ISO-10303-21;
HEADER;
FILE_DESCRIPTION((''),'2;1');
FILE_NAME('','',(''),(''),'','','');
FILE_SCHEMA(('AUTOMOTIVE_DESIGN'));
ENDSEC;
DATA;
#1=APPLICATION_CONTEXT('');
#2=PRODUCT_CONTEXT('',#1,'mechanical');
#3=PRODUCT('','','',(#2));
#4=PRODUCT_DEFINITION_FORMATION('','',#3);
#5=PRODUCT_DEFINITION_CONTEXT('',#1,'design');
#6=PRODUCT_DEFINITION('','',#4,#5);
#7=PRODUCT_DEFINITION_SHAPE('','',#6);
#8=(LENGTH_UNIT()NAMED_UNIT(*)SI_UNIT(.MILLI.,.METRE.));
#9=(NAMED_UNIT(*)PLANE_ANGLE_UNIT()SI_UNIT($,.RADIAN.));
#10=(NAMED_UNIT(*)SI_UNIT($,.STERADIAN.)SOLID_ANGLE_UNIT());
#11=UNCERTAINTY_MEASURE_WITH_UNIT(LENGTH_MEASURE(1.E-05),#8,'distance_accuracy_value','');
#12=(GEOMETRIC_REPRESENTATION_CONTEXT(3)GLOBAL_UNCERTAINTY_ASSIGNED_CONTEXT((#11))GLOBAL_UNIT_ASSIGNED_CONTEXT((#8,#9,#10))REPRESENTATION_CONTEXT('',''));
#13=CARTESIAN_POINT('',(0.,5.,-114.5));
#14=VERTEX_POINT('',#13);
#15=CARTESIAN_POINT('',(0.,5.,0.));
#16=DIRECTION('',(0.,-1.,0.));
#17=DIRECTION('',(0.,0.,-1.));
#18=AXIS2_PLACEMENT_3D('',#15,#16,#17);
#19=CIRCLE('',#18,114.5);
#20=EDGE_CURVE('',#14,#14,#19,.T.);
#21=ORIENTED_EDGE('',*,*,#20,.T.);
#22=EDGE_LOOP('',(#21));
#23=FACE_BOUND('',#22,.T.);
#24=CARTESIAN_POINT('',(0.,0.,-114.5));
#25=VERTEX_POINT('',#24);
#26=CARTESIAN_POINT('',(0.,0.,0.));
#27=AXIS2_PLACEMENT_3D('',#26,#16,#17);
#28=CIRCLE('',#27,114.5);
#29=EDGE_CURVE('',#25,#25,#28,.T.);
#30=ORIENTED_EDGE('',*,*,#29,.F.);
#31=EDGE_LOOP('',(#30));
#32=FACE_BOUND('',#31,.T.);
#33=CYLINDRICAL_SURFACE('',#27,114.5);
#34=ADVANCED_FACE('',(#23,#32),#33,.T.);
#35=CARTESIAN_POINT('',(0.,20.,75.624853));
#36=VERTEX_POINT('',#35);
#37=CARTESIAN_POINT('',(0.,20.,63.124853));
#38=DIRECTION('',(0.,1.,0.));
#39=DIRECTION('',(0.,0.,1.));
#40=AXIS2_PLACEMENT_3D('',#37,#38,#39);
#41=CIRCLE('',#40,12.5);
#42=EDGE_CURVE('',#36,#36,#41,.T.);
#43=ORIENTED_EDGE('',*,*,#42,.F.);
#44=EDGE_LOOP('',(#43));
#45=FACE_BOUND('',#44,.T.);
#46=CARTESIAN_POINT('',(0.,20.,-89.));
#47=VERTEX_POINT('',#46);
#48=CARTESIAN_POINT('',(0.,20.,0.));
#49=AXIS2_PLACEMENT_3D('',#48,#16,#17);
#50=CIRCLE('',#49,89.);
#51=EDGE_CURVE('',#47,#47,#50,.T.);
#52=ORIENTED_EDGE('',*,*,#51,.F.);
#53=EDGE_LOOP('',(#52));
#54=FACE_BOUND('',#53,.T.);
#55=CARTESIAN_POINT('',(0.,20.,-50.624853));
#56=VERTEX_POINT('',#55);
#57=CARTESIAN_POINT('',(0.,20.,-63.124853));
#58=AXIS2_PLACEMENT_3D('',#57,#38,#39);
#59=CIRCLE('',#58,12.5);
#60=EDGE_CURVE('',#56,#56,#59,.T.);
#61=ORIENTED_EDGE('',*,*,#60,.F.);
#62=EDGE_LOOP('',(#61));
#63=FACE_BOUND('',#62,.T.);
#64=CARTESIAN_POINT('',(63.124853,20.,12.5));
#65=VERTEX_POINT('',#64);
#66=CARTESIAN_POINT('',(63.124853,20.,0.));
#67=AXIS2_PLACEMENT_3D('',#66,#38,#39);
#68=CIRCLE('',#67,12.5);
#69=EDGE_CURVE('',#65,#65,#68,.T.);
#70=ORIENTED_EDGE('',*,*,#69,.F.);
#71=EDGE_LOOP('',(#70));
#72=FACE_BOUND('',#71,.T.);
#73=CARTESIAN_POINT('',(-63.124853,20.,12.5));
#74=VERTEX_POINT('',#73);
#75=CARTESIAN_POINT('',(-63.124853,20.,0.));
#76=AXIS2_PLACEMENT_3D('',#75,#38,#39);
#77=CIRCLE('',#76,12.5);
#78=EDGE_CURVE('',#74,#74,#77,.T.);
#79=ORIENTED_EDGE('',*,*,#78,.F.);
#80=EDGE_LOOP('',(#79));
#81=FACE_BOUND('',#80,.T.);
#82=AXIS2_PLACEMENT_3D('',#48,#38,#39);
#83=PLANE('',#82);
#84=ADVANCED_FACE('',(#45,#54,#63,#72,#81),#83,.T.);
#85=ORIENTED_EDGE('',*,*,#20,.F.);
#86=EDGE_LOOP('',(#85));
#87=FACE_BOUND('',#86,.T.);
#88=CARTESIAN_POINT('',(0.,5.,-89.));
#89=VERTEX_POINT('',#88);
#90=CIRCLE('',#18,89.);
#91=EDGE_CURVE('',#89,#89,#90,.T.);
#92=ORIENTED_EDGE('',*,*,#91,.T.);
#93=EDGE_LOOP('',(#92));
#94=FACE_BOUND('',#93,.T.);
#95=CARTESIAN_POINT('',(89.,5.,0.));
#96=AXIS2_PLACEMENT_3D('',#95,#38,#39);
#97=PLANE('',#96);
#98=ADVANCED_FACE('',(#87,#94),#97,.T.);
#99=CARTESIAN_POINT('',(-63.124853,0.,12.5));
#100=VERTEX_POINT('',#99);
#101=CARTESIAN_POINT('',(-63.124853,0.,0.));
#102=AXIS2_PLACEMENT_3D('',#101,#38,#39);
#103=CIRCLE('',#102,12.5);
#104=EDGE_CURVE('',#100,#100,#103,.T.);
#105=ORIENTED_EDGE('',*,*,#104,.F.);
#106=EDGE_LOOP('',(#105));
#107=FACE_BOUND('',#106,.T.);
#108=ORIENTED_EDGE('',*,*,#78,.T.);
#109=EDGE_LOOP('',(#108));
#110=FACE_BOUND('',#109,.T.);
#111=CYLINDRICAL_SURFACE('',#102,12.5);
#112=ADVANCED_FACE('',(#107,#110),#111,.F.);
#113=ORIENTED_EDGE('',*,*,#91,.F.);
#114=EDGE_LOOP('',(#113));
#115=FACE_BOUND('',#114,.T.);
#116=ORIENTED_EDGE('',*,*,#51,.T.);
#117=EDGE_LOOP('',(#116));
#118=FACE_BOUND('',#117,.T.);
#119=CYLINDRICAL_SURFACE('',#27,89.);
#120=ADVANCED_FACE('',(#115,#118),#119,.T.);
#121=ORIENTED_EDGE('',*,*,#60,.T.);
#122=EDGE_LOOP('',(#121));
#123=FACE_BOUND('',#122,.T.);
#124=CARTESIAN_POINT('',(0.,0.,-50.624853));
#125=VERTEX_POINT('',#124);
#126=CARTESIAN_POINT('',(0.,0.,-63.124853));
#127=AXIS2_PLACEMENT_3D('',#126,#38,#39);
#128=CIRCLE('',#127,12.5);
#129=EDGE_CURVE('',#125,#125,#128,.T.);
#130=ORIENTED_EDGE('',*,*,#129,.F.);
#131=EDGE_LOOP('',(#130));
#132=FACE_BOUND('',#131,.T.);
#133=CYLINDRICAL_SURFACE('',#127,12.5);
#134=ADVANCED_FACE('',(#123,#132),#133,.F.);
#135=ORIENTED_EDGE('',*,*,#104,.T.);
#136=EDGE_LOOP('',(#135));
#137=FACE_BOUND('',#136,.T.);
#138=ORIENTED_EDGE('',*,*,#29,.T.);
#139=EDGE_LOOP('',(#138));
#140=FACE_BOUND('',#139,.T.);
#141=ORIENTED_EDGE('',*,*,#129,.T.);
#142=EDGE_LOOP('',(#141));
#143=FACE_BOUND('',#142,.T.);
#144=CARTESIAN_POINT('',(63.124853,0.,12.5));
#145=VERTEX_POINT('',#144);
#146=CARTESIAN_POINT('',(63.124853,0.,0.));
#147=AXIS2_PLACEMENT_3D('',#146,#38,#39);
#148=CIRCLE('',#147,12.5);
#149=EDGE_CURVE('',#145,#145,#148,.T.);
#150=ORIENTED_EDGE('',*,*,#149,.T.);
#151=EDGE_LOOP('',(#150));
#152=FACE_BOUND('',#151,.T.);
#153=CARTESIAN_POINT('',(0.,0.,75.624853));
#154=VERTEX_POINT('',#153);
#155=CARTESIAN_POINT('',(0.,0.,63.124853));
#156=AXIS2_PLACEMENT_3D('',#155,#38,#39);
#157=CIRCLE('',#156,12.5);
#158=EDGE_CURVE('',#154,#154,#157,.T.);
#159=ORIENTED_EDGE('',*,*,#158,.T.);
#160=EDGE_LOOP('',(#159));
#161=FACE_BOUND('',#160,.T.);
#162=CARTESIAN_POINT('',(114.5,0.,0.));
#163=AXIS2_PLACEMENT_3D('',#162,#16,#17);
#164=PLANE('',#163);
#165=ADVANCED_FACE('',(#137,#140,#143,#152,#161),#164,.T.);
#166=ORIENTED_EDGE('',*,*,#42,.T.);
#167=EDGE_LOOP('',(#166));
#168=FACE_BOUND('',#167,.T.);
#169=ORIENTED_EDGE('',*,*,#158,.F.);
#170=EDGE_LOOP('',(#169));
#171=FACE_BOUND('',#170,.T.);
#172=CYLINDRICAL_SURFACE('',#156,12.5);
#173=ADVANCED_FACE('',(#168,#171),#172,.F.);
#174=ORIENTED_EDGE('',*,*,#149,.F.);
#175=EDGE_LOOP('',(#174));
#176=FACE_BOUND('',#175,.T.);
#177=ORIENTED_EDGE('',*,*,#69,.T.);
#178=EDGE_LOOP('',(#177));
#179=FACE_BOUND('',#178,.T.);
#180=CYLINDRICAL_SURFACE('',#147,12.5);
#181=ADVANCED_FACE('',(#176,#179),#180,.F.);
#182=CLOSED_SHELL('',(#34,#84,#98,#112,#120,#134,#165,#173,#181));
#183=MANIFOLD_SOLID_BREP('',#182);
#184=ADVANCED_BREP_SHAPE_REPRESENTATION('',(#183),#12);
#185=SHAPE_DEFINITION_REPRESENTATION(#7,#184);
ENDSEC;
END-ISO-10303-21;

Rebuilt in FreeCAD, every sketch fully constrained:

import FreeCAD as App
import Part
import Sketcher

V = App.Vector

doc = App.newDocument("Part")
body = doc.addObject("PartDesign::Body", "Body")

# Sketch on XY plane
sketch1 = body.newObject("Sketcher::SketchObject", "Sketch")
sketch1.AttachmentSupport = (doc.getObject("XY_Plane"), [""])
sketch1.MapMode = "FlatFace"
sketch1.addGeometry([
    Part.LineSegment(V(0, 20, 0), V(0, 0, 0)),  # 0
    Part.LineSegment(V(0, 0, 0), V(114.5, 0, 0)),  # 1
    Part.LineSegment(V(114.5, 0, 0), V(114.5, 5, 0)),  # 2
    Part.LineSegment(V(114.5, 5, 0), V(89, 5, 0)),  # 3
    Part.LineSegment(V(89, 5, 0), V(89, 20, 0)),  # 4
    Part.LineSegment(V(89, 20, 0), V(0, 20, 0)),  # 5
], False)
sketch1.addConstraint([
    Sketcher.Constraint("Coincident", 0, 2, 1, 1),
    Sketcher.Constraint("Coincident", 1, 2, 2, 1),
    Sketcher.Constraint("Coincident", 2, 2, 3, 1),
    Sketcher.Constraint("Coincident", 3, 2, 4, 1),
    Sketcher.Constraint("Coincident", 4, 2, 5, 1),
    Sketcher.Constraint("Coincident", 5, 2, 0, 1),
    Sketcher.Constraint("Vertical", 0),
    Sketcher.Constraint("Horizontal", 1),
    Sketcher.Constraint("Vertical", 2),
    Sketcher.Constraint("Horizontal", 3),
    Sketcher.Constraint("Vertical", 4),
    Sketcher.Constraint("Horizontal", 5),
    Sketcher.Constraint("Coincident", 0, 2, -1, 1),
    Sketcher.Constraint("DistanceX", 5, 2, 5, 1, 89.0),
    Sketcher.Constraint("DistanceY", 0, 2, 0, 1, 20.0),
    Sketcher.Constraint("DistanceY", 2, 1, 2, 2, 5.0),
    Sketcher.Constraint("DistanceX", 1, 1, 1, 2, 114.5),
])
revolution = body.newObject("PartDesign::Revolution", "Revolution")
revolution.Profile = sketch1
revolution.ReferenceAxis = (sketch1, ["V_Axis"])
revolution.Angle = 360

# Sketch on XZ plane
sketch2 = body.newObject("Sketcher::SketchObject", "Sketch001")
sketch2.AttachmentSupport = (doc.getObject("XZ_Plane"), [""])
sketch2.MapMode = "FlatFace"
sketch2.AttachmentOffset = App.Placement(V(0, 0, -20), App.Rotation())
sketch2.addGeometry([
    Part.Circle(V(0, -63.124853, 0), V(0, 0, 1), 12.5),
    Part.Circle(V(63.124853, 0, 0), V(0, 0, 1), 12.5),
    Part.Circle(V(0, 63.124853, 0), V(0, 0, 1), 12.5),
    Part.Circle(V(-63.124853, 0, 0), V(0, 0, 1), 12.5),
], False)
sketch2.addConstraint([
    Sketcher.Constraint("Equal", 0, 1),
    Sketcher.Constraint("Equal", 1, 2),
    Sketcher.Constraint("Equal", 2, 3),
    Sketcher.Constraint("Symmetric", 0, 3, 2, 3, -1, 1),
    Sketcher.Constraint("Symmetric", 1, 3, 3, 3, -1, 1),
    Sketcher.Constraint("PointOnObject", 0, 3, -2),
    Sketcher.Constraint("PointOnObject", 1, 3, -1),
    Sketcher.Constraint("Diameter", 0, 25.0),
    Sketcher.Constraint("DistanceY", 0, 3, -1, 1, 63.124853),
    Sketcher.Constraint("DistanceX", -1, 1, 1, 3, 63.124853),
])
pocket1 = body.newObject("PartDesign::Pocket", "Pocket")
pocket1.Profile = sketch2
pocket1.Type = "ThroughAll"
pocket1.Reversed = True

doc.recompute()
